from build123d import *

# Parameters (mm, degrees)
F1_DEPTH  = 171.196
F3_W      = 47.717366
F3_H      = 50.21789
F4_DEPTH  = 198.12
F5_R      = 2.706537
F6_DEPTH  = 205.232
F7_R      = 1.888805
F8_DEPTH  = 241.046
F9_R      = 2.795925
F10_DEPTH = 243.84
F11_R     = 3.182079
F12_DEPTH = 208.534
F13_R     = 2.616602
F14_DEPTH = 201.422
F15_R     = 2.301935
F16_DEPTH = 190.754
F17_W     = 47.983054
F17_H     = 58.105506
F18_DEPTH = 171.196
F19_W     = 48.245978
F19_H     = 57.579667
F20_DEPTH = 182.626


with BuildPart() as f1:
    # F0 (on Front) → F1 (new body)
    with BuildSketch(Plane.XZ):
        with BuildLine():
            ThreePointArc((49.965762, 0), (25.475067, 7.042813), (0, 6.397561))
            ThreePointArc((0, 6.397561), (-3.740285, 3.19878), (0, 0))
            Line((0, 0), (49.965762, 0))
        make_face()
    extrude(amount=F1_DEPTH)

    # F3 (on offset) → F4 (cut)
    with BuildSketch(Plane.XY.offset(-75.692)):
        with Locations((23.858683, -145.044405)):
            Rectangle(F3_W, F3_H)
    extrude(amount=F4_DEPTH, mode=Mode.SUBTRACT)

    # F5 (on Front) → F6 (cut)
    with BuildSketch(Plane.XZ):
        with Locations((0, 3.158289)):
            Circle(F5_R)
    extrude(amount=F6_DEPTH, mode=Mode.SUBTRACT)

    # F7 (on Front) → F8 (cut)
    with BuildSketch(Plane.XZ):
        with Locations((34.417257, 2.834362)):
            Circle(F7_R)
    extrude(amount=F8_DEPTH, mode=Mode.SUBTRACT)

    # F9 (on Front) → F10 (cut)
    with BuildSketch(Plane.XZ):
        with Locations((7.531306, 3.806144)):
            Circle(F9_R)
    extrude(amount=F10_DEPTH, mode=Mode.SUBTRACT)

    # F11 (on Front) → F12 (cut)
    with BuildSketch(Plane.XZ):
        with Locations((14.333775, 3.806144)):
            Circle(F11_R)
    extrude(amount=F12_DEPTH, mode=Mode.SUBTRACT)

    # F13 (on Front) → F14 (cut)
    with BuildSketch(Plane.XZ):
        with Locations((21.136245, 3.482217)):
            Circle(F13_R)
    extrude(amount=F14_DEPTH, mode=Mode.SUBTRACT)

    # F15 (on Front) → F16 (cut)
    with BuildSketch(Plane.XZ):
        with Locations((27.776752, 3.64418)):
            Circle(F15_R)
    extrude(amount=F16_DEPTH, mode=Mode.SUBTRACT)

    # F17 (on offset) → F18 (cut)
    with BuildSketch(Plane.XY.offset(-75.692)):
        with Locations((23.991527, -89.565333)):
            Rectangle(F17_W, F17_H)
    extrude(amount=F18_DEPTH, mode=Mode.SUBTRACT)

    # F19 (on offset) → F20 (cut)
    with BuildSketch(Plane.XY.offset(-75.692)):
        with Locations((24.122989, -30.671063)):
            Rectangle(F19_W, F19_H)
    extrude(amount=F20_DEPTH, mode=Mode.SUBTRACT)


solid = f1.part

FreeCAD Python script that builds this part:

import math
import FreeCAD as App
import Part
import Sketcher
from FreeCAD import Vector
Q = App.Units.Quantity

doc = App.newDocument("Part")
body = doc.addObject("PartDesign::Body", "Body")

# Sketch on XZ plane
sketch1 = doc.addObject("Sketcher::SketchObject", "Sketch")
body.addObject(sketch1)
sketch1.AttachmentSupport = (doc.XZ_Plane, [""])
sketch1.MapMode = "FlatFace"
sketch1.addGeometry([
    Part.ArcOfCircle(Part.Circle(Vector(14.834323, -76.062744, 0), Vector(0, 0, 1), 83.784002), math.radians(65.208991), math.radians(100.198231)),
    Part.ArcOfCircle(Part.Circle(Vector(-0.502306, 3.19878, 0), Vector(0, 0, 1), 3.237979), math.radians(81.075694), math.radians(278.924306)),
    Part.LineSegment(Vector(0, 0, 0), Vector(49.965762, 0, 0)),
], False)
sketch1.addConstraint([
    Sketcher.Constraint("Coincident", 0, 2, 1, 1),
    Sketcher.Constraint("Coincident", 1, 2, 2, 1),
    Sketcher.Constraint("Coincident", 2, 2, 0, 1),
    Sketcher.Constraint("Horizontal", 2),
    Sketcher.Constraint("Coincident", 1, 2, -1, 1),
    Sketcher.Constraint("PointOnObject", 0, 2, -2),
    Sketcher.Constraint("Radius", 1, 3.237979),
    Sketcher.Constraint("Radius", 0, 83.784002),
    Sketcher.Constraint("DistanceX", 2, 1, 2, 2, 49.965762),
    Sketcher.Constraint("DistanceY", -1, 1, 1, 3, 3.19878),
])
pad1 = doc.addObject("PartDesign::Pad", "Pad")
body.addObject(pad1)
pad1.Profile = sketch1
pad1.Length = Q("6.74 in")

# Sketch on XY plane
sketch2 = doc.addObject("Sketcher::SketchObject", "Sketch001")
body.addObject(sketch2)
sketch2.AttachmentSupport = (doc.XY_Plane, [""])
sketch2.MapMode = "FlatFace"
sketch2.AttachmentOffset = App.Placement(Vector(0, 0, -2.98 * 25.4), App.Rotation())
sketch2.addGeometry([
    Part.LineSegment(Vector(0, -119.93546, 0), Vector(0, -170.15335, 0)),
    Part.LineSegment(Vector(0, -170.15335, 0), Vector(47.717366, -170.15335, 0)),
    Part.LineSegment(Vector(47.717366, -170.15335, 0), Vector(47.717366, -119.93546, 0)),
    Part.LineSegment(Vector(47.717366, -119.93546, 0), Vector(0, -119.93546, 0)),
], False)
sketch2.addConstraint([
    Sketcher.Constraint("Coincident", 0, 2, 1, 1),
    Sketcher.Constraint("Coincident", 1, 2, 2, 1),
    Sketcher.Constraint("Coincident", 2, 2, 3, 1),
    Sketcher.Constraint("Coincident", 3, 2, 0, 1),
    Sketcher.Constraint("Vertical", 0),
    Sketcher.Constraint("Horizontal", 1),
    Sketcher.Constraint("Vertical", 2),
    Sketcher.Constraint("Horizontal", 3),
    Sketcher.Constraint("PointOnObject", 0, 2, -2),
    Sketcher.Constraint("DistanceY", 0, 2, 0, 1, 50.21789),
    Sketcher.Constraint("DistanceX", 1, 1, 1, 2, 47.717366),
    Sketcher.Constraint("DistanceY", 0, 2, -1, 1, 170.15335),
])
pocket1 = doc.addObject("PartDesign::Pocket", "Pocket")
body.addObject(pocket1)
pocket1.Profile = sketch2
pocket1.Length = Q("7.8 in")
pocket1.Reversed = True

# Sketch on XZ plane
sketch3 = doc.addObject("Sketcher::SketchObject", "Sketch002")
body.addObject(sketch3)
sketch3.AttachmentSupport = (doc.XZ_Plane, [""])
sketch3.MapMode = "FlatFace"
sketch3.addGeometry(Part.Circle(Vector(0, 3.158289, 0), Vector(0, 0, 1), 2.706537), False)
sketch3.addConstraint([
    Sketcher.Constraint("PointOnObject", 0, 3, -2),
    Sketcher.Constraint("Diameter", 0, 5.413074),
    Sketcher.Constraint("DistanceY", -1, 1, 0, 3, 3.158289),
])
pocket2 = doc.addObject("PartDesign::Pocket", "Pocket001")
body.addObject(pocket2)
pocket2.Profile = sketch3
pocket2.Length = Q("8.08 in")
pocket2.Reversed = True

# Sketch on XZ plane
sketch4 = doc.addObject("Sketcher::SketchObject", "Sketch003")
body.addObject(sketch4)
sketch4.AttachmentSupport = (doc.XZ_Plane, [""])
sketch4.MapMode = "FlatFace"
sketch4.addGeometry(Part.Circle(Vector(34.417257, 2.834362, 0), Vector(0, 0, 1), 1.888805), False)
sketch4.addConstraint([
    Sketcher.Constraint("Diameter", 0, 3.77761),
    Sketcher.Constraint("DistanceY", -1, 1, 0, 3, 2.834362),
    Sketcher.Constraint("DistanceX", -1, 1, 0, 3, 34.417257),
])
pocket3 = doc.addObject("PartDesign::Pocket", "Pocket002")
body.addObject(pocket3)
pocket3.Profile = sketch4
pocket3.Length = Q("9.49 in")
pocket3.Reversed = True

# Sketch on XZ plane
sketch5 = doc.addObject("Sketcher::SketchObject", "Sketch004")
body.addObject(sketch5)
sketch5.AttachmentSupport = (doc.XZ_Plane, [""])
sketch5.MapMode = "FlatFace"
sketch5.addGeometry(Part.Circle(Vector(7.531306, 3.806144, 0), Vector(0, 0, 1), 2.795925), False)
sketch5.addConstraint([
    Sketcher.Constraint("Diameter", 0, 5.59185),
    Sketcher.Constraint("DistanceX", -1, 1, 0, 3, 7.531306),
    Sketcher.Constraint("DistanceY", -1, 1, 0, 3, 3.806144),
])
pocket4 = doc.addObject("PartDesign::Pocket", "Pocket003")
body.addObject(pocket4)
pocket4.Profile = sketch5
pocket4.Length = Q("9.6 in")
pocket4.Reversed = True

# Sketch on XZ plane
sketch6 = doc.addObject("Sketcher::SketchObject", "Sketch005")
body.addObject(sketch6)
sketch6.AttachmentSupport = (doc.XZ_Plane, [""])
sketch6.MapMode = "FlatFace"
sketch6.addGeometry(Part.Circle(Vector(14.333775, 3.806144, 0), Vector(0, 0, 1), 3.182079), False)
sketch6.addConstraint([
    Sketcher.Constraint("Diameter", 0, 6.364158),
    Sketcher.Constraint("DistanceX", -1, 1, 0, 3, 14.333775),
    Sketcher.Constraint("DistanceY", -1, 1, 0, 3, 3.806144),
])
pocket5 = doc.addObject("PartDesign::Pocket", "Pocket004")
body.addObject(pocket5)
pocket5.Profile = sketch6
pocket5.Length = Q("8.21 in")
pocket5.Reversed = True

# Sketch on XZ plane
sketch7 = doc.addObject("Sketcher::SketchObject", "Sketch006")
body.addObject(sketch7)
sketch7.AttachmentSupport = (doc.XZ_Plane, [""])
sketch7.MapMode = "FlatFace"
sketch7.addGeometry(Part.Circle(Vector(21.136245, 3.482217, 0), Vector(0, 0, 1), 2.616602), False)
sketch7.addConstraint([
    Sketcher.Constraint("Diameter", 0, 5.233204),
    Sketcher.Constraint("DistanceX", -1, 1, 0, 3, 21.136245),
    Sketcher.Constraint("DistanceY", -1, 1, 0, 3, 3.482217),
])
pocket6 = doc.addObject("PartDesign::Pocket", "Pocket005")
body.addObject(pocket6)
pocket6.Profile = sketch7
pocket6.Length = Q("7.93 in")
pocket6.Reversed = True

# Sketch on XZ plane
sketch8 = doc.addObject("Sketcher::SketchObject", "Sketch007")
body.addObject(sketch8)
sketch8.AttachmentSupport = (doc.XZ_Plane, [""])
sketch8.MapMode = "FlatFace"
sketch8.addGeometry(Part.Circle(Vector(27.776752, 3.64418, 0), Vector(0, 0, 1), 2.301935), False)
sketch8.addConstraint([
    Sketcher.Constraint("Diameter", 0, 4.60387),
    Sketcher.Constraint("DistanceX", -1, 1, 0, 3, 27.776752),
    Sketcher.Constraint("DistanceY", -1, 1, 0, 3, 3.64418),
])
pocket7 = doc.addObject("PartDesign::Pocket", "Pocket006")
body.addObject(pocket7)
pocket7.Profile = sketch8
pocket7.Length = Q("7.51 in")
pocket7.Reversed = True

# Sketch on XY plane
sketch9 = doc.addObject("Sketcher::SketchObject", "Sketch008")
body.addObject(sketch9)
sketch9.AttachmentSupport = (doc.XY_Plane, [""])
sketch9.MapMode = "FlatFace"
sketch9.AttachmentOffset = App.Placement(Vector(0, 0, -2.98 * 25.4), App.Rotation())
sketch9.addGeometry([
    Part.LineSegment(Vector(0, -60.51258, 0), Vector(0, -118.618086, 0)),
    Part.LineSegment(Vector(0, -118.618086, 0), Vector(47.983054, -118.618086, 0)),
    Part.LineSegment(Vector(47.983054, -118.618086, 0), Vector(47.983054, -60.51258, 0)),
    Part.LineSegment(Vector(47.983054, -60.51258, 0), Vector(0, -60.51258, 0)),
], False)
sketch9.addConstraint([
    Sketcher.Constraint("Coincident", 0, 2, 1, 1),
    Sketcher.Constraint("Coincident", 1, 2, 2, 1),
    Sketcher.Constraint("Coincident", 2, 2, 3, 1),
    Sketcher.Constraint("Coincident", 3, 2, 0, 1),
    Sketcher.Constraint("Vertical", 0),
    Sketcher.Constraint("Horizontal", 1),
    Sketcher.Constraint("Vertical", 2),
    Sketcher.Constraint("Horizontal", 3),
    Sketcher.Constraint("PointOnObject", 0, 2, -2),
    Sketcher.Constraint("DistanceX", 1, 1, 1, 2, 47.983054),
    Sketcher.Constraint("DistanceY", 0, 2, 0, 1, 58.105506),
    Sketcher.Constraint("DistanceY", 2, 2, -1, 1, 60.51258),
])
pocket8 = doc.addObject("PartDesign::Pocket", "Pocket007")
body.addObject(pocket8)
pocket8.Profile = sketch9
pocket8.Length = Q("6.74 in")
pocket8.Reversed = True

# Sketch on XY plane
sketch10 = doc.addObject("Sketcher::SketchObject", "Sketch009")
body.addObject(sketch10)
sketch10.AttachmentSupport = (doc.XY_Plane, [""])
sketch10.MapMode = "FlatFace"
sketch10.AttachmentOffset = App.Placement(Vector(0, 0, -2.98 * 25.4), App.Rotation())
sketch10.addGeometry([
    Part.LineSegment(Vector(0, -1.88123, 0), Vector(0, -59.460896, 0)),
    Part.LineSegment(Vector(0, -59.460896, 0), Vector(48.245978, -59.460896, 0)),
    Part.LineSegment(Vector(48.245978, -59.460896, 0), Vector(48.245978, -1.88123, 0)),
    Part.LineSegment(Vector(48.245978, -1.88123, 0), Vector(0, -1.88123, 0)),
], False)
sketch10.addConstraint([
    Sketcher.Constraint("Coincident", 0, 2, 1, 1),
    Sketcher.Constraint("Coincident", 1, 2, 2, 1),
    Sketcher.Constraint("Coincident", 2, 2, 3, 1),
    Sketcher.Constraint("Coincident", 3, 2, 0, 1),
    Sketcher.Constraint("Vertical", 0),
    Sketcher.Constraint("Horizontal", 1),
    Sketcher.Constraint("Vertical", 2),
    Sketcher.Constraint("Horizontal", 3),
    Sketcher.Constraint("PointOnObject", 0, 2, -2),
    Sketcher.Constraint("DistanceX", 1, 1, 1, 2, 48.245978),
    Sketcher.Constraint("DistanceY", 0, 2, 0, 1, 57.579667),
    Sketcher.Constraint("DistanceY", 2, 2, -1, 1, 1.88123),
])
pocket9 = doc.addObject("PartDesign::Pocket", "Pocket008")
body.addObject(pocket9)
pocket9.Profile = sketch10
pocket9.Length = Q("7.19 in")
pocket9.Reversed = True

doc.recompute()
